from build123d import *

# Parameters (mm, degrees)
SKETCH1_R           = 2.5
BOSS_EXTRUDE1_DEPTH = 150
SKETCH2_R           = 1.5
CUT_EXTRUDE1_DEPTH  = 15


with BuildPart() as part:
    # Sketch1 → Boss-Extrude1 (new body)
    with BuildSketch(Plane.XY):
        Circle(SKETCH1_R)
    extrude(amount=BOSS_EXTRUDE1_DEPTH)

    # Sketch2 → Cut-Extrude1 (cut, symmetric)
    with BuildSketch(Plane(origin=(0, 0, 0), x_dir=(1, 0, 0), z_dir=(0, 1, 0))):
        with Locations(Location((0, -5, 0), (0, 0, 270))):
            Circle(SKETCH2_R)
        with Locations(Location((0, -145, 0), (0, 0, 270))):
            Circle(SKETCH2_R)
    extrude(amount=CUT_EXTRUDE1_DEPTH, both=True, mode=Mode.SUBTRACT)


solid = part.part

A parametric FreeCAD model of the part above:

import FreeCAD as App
import Part
import Sketcher
Q = App.Units.Quantity

doc = App.newDocument("Part")
body = doc.addObject("PartDesign::Body", "Body")

# Sketch on XY plane
sketch1 = body.newObject("Sketcher::SketchObject", "Sketch")
sketch1.AttachmentSupport = (doc.getObject("XY_Plane"), [""])
sketch1.MapMode = "FlatFace"
sketch1.addGeometry(Part.Circle(App.Vector(0, 0, 0), App.Vector(0, 0, 1), 2.5), False)
sketch1.addConstraint([
    Sketcher.Constraint("Coincident", 0, 3, -1, 1),
    Sketcher.Constraint("Diameter", 0, Q("5 mm")),
])
pad1 = body.newObject("PartDesign::Pad", "Pad")
pad1.Profile = sketch1
pad1.Length = 150

# Sketch on XZ plane
sketch2 = body.newObject("Sketcher::SketchObject", "Sketch001")
sketch2.AttachmentSupport = (doc.getObject("XZ_Plane"), [""])
sketch2.MapMode = "FlatFace"
sketch2.addGeometry([
    Part.Circle(App.Vector(0, 5, 0), App.Vector(0, 0, 1), 1.5),
    Part.Circle(App.Vector(0, 145, 0), App.Vector(0, 0, 1), 1.5),
], False)
sketch2.addConstraint([
    Sketcher.Constraint("Equal", 0, 1),
    Sketcher.Constraint("PointOnObject", 0, 3, -2),
    Sketcher.Constraint("PointOnObject", 1, 3, -2),
    Sketcher.Constraint("Diameter", 0, Q("3 mm")),
    Sketcher.Constraint("DistanceY", -1, 1, 0, 3, Q("5 mm")),
    Sketcher.Constraint("DistanceY", -1, 1, 1, 3, Q("145 mm")),
])
pocket1 = body.newObject("PartDesign::Pocket", "Pocket")
pocket1.Profile = sketch2
pocket1.Length = 30
pocket1.Midplane = True

doc.recompute()
